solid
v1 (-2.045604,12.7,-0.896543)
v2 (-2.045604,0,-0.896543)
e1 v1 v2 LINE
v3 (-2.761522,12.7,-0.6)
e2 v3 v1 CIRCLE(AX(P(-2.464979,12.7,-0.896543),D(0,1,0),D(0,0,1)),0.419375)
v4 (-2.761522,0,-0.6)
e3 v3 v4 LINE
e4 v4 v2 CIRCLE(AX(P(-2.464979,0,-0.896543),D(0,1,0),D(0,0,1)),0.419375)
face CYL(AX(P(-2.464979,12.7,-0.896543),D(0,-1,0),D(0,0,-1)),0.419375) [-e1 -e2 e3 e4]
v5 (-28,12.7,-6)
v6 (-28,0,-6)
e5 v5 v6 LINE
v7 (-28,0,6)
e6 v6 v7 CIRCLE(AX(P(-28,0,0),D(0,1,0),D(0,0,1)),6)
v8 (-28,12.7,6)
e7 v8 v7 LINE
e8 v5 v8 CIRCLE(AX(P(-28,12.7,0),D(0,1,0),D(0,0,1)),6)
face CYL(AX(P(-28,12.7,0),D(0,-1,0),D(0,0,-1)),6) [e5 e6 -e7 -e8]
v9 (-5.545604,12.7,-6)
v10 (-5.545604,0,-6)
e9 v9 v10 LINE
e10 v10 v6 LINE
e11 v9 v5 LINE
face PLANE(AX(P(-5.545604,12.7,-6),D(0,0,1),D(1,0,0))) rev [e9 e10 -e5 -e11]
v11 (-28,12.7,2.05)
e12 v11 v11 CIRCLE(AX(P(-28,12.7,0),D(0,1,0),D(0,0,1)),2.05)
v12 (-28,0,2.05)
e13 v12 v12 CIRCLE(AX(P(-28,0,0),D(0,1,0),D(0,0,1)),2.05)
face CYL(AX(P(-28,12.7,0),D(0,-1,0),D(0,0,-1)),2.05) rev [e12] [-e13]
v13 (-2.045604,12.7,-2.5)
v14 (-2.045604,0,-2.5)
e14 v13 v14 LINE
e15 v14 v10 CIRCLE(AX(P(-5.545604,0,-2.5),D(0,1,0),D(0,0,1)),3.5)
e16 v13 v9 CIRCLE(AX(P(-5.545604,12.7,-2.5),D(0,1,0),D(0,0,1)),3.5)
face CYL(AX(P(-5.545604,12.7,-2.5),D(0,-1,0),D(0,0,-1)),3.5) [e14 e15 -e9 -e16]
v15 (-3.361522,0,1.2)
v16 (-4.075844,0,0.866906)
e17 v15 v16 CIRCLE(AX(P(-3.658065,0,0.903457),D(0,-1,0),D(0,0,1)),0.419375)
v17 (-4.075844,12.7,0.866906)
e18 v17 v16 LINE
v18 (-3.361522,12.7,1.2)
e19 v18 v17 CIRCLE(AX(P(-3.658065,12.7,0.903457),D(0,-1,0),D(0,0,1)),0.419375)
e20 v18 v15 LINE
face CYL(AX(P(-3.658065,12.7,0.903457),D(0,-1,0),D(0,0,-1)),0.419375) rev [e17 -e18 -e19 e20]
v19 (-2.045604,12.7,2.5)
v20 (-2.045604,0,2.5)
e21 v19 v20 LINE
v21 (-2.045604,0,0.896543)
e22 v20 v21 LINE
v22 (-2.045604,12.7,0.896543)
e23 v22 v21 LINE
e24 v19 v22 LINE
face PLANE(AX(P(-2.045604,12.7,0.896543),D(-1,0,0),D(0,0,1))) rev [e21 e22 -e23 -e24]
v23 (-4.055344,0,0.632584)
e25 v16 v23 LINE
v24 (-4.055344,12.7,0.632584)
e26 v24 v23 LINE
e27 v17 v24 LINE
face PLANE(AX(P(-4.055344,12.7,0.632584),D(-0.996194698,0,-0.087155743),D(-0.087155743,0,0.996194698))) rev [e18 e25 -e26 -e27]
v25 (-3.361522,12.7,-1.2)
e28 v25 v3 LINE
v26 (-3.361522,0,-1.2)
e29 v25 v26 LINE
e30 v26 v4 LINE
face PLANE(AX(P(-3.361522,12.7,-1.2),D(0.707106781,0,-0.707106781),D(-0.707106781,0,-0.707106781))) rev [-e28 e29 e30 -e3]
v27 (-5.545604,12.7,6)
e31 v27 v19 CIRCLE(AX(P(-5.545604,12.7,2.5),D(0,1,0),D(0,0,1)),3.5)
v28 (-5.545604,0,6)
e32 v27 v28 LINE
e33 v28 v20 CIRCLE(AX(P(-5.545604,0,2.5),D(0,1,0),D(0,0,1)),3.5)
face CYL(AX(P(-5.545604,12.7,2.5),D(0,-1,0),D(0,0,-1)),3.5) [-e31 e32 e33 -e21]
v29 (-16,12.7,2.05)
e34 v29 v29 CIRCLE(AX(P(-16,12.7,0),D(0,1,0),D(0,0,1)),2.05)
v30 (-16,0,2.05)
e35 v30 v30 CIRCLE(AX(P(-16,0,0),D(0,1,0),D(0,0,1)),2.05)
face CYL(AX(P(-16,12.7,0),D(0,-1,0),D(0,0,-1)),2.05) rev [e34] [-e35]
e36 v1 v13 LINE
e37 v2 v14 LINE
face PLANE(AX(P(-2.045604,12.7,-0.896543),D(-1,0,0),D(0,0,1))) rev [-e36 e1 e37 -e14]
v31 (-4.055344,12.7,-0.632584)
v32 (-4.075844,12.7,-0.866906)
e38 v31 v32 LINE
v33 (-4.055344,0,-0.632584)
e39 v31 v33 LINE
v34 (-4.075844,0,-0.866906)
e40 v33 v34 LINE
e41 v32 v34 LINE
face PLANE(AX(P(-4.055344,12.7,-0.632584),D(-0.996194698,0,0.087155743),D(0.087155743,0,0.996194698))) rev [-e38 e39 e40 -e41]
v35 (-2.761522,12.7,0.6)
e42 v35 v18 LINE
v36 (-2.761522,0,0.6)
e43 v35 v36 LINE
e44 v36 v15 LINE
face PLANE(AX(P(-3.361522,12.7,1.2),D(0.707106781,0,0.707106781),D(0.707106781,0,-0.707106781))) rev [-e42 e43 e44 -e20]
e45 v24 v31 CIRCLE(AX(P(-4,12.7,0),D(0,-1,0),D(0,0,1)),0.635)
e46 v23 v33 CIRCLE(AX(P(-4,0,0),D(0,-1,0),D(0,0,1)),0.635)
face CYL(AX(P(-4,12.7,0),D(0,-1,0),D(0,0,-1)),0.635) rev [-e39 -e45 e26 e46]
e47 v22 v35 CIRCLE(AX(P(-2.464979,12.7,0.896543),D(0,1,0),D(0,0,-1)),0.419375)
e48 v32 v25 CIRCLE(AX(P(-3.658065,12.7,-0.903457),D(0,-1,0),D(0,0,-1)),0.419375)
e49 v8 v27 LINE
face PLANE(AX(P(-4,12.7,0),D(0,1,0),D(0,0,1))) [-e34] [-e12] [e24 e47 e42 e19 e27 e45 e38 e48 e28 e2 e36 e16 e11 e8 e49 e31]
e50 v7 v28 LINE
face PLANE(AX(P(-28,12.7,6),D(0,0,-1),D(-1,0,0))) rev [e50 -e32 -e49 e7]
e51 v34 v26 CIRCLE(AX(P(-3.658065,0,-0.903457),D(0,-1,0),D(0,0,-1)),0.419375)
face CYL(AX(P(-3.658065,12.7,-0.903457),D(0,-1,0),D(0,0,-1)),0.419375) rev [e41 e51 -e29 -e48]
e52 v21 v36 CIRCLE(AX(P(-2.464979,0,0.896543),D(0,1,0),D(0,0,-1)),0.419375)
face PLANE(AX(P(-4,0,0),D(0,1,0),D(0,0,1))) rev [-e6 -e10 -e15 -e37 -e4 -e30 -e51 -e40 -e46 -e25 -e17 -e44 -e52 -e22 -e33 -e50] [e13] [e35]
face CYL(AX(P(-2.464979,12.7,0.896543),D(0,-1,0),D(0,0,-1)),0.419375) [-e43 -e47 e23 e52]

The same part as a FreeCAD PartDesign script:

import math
import FreeCAD as App
import Part
import Sketcher
from FreeCAD import Vector
Q = App.Units.Quantity

doc = App.newDocument("Part")
body = doc.addObject("PartDesign::Body", "Body")

sketch1 = body.newObject("Sketcher::SketchObject", "Sketch")
sketch1.AttachmentSupport = (doc.getObject("XZ_Plane"), [""])
sketch1.MapMode = "FlatFace"
sketch1.addGeometry(Part.LineSegment(Vector(-4.06, -0.63, 0), Vector(-4.08, -0.87, 0)), False)
sketch1.addGeometry(Part.ArcOfCircle(Part.Circle(Vector(-3.66, -0.9, 0), Vector(0, 0, 1), 0.42), math.radians(175), math.radians(315)), False)
sketch1.addGeometry(Part.LineSegment(Vector(-3.36, -1.2, 0), Vector(-2.76, -0.6, 0)), False)
sketch1.addGeometry(Part.ArcOfCircle(Part.Circle(Vector(-2.46, -0.9, 0), Vector(0, 0, 1), 0.42), math.radians(0), math.radians(135)), False)
sketch1.addGeometry(Part.LineSegment(Vector(-2.05, -0.9, 0), Vector(-2.05, -2.5, 0)), False)
sketch1.addGeometry(Part.ArcOfCircle(Part.Circle(Vector(-5.55, -2.5, 0), Vector(0, 0, 1), 3.5), math.radians(-90), math.radians(0)), False)
sketch1.addGeometry(Part.LineSegment(Vector(-5.55, -6, 0), Vector(-28, -6, 0)), False)
sketch1.addGeometry(Part.ArcOfCircle(Part.Circle(Vector(-28, 0, 0), Vector(0, 0, 1), 6), math.radians(90), math.radians(270)), False)
sketch1.addGeometry(Part.LineSegment(Vector(-28, 6, 0), Vector(-5.55, 6, 0)), False)
sketch1.addGeometry(Part.ArcOfCircle(Part.Circle(Vector(-5.55, 2.5, 0), Vector(0, 0, 1), 3.5), math.radians(0), math.radians(90)), False)
sketch1.addGeometry(Part.LineSegment(Vector(-2.05, 2.5, 0), Vector(-2.05, 0.9, 0)), False)
sketch1.addGeometry(Part.ArcOfCircle(Part.Circle(Vector(-2.46, 0.9, 0), Vector(0, 0, 1), 0.42), math.radians(-135), math.radians(0)), False)
sketch1.addGeometry(Part.LineSegment(Vector(-2.76, 0.6, 0), Vector(-3.36, 1.2, 0)), False)
sketch1.addGeometry(Part.ArcOfCircle(Part.Circle(Vector(-3.66, 0.9, 0), Vector(0, 0, 1), 0.42), math.radians(45), math.radians(185)), False)
sketch1.addGeometry(Part.LineSegment(Vector(-4.08, 0.87, 0), Vector(-4.06, 0.63, 0)), False)
sketch1.addGeometry(Part.ArcOfCircle(Part.Circle(Vector(-4, 0, 0), Vector(0, 0, 1), 0.64), math.radians(95), math.radians(265)), False)
sketch1.addGeometry(Part.Circle(Vector(-28, 0, 0), Vector(0, 0, 1), 2.05), False)
sketch1.addGeometry(Part.Circle(Vector(-16, 0, 0), Vector(0, 0, 1), 2.05), False)
sketch1.addConstraint(Sketcher.Constraint("Tangent", 0, 2, 1, 1))
sketch1.addConstraint(Sketcher.Constraint("Tangent", 1, 2, 2, 1))
sketch1.addConstraint(Sketcher.Constraint("Tangent", 2, 2, 3, 2))
sketch1.addConstraint(Sketcher.Constraint("Tangent", 3, 1, 4, 1))
sketch1.addConstraint(Sketcher.Constraint("Tangent", 4, 2, 5, 2))
sketch1.addConstraint(Sketcher.Constraint("Tangent", 5, 1, 6, 1))
sketch1.addConstraint(Sketcher.Constraint("Tangent", 6, 2, 7, 2))
sketch1.addConstraint(Sketcher.Constraint("Tangent", 7, 1, 8, 1))
sketch1.addConstraint(Sketcher.Constraint("Tangent", 8, 2, 9, 2))
sketch1.addConstraint(Sketcher.Constraint("Tangent", 9, 1, 10, 1))
sketch1.addConstraint(Sketcher.Constraint("Tangent", 10, 2, 11, 2))
sketch1.addConstraint(Sketcher.Constraint("Tangent", 11, 1, 12, 1))
sketch1.addConstraint(Sketcher.Constraint("Tangent", 12, 2, 13, 1))
sketch1.addConstraint(Sketcher.Constraint("Tangent", 13, 2, 14, 1))
sketch1.addConstraint(Sketcher.Constraint("Coincident", 14, 2, 15, 1))
sketch1.addConstraint(Sketcher.Constraint("Coincident", 15, 2, 0, 1))
sketch1.addConstraint(Sketcher.Constraint("Vertical", 4))
sketch1.addConstraint(Sketcher.Constraint("Horizontal", 6))
sketch1.addConstraint(Sketcher.Constraint("Horizontal", 8))
sketch1.addConstraint(Sketcher.Constraint("Vertical", 10))
sketch1.addConstraint(Sketcher.Constraint("Coincident", 16, 3, 7, 3))
sketch1.addConstraint(Sketcher.Constraint("Equal", 1, 3))
sketch1.addConstraint(Sketcher.Constraint("Equal", 5, 9))
sketch1.addConstraint(Sketcher.Constraint("Equal", 3, 11))
sketch1.addConstraint(Sketcher.Constraint("Equal", 11, 13))
sketch1.addConstraint(Sketcher.Constraint("Equal", 16, 17))
sketch1.addConstraint(Sketcher.Constraint("Symmetric", 5, 3, 9, 3, -1))
sketch1.addConstraint(Sketcher.Constraint("Symmetric", 1, 3, 13, 3, -1))
sketch1.addConstraint(Sketcher.Constraint("Symmetric", 14, 2, 15, 2, -1))
sketch1.addConstraint(Sketcher.Constraint("PointOnObject", 17, 3, -1))
sketch1.addConstraint(Sketcher.Constraint("Perpendicular", 2, 12))
sketch1.addConstraint(Sketcher.Constraint("Vertical", 2, 2, 11, 1))
sketch1.addConstraint(Sketcher.Constraint("Radius", 7, Q("6 mm")))
sketch1.addConstraint(Sketcher.Constraint("Diameter", 16, Q("4.1 mm")))
sketch1.addConstraint(Sketcher.Constraint("Radius", 5, Q("3.5 mm")))
sketch1.addConstraint(Sketcher.Constraint("Angle", 0, Q("-95 deg")))
sketch1.addConstraint(Sketcher.Constraint("DistanceX", 7, 3, -1, 1, Q("28 mm")))
sketch1.addConstraint(Sketcher.Constraint("DistanceX", 15, 3, -1, 1, Q("4 mm")))
sketch1.addConstraint(Sketcher.Constraint("DistanceX", 17, 3, -1, 1, Q("16 mm")))
sketch1.addConstraint(Sketcher.Constraint("Radius", 15, Q("0.635 mm")))
sketch1.addConstraint(Sketcher.Constraint("DistanceY", 1, 2, -1, 1, Q("1.2 mm")))
sketch1.addConstraint(Sketcher.Constraint("DistanceY", 2, 2, -1, 1, Q("0.6 mm")))
sketch1.addConstraint(Sketcher.Constraint("Radius", 1, Q("0.419375 mm")))
sketch1.addConstraint(Sketcher.Constraint("DistanceX", 6, 2, 6, 1, Q("22.454396 mm")))
pad1 = body.newObject("PartDesign::Pad", "Pad")
pad1.Profile = sketch1
pad1.Length = 12.7
pad1.Reversed = True

doc.recompute()
